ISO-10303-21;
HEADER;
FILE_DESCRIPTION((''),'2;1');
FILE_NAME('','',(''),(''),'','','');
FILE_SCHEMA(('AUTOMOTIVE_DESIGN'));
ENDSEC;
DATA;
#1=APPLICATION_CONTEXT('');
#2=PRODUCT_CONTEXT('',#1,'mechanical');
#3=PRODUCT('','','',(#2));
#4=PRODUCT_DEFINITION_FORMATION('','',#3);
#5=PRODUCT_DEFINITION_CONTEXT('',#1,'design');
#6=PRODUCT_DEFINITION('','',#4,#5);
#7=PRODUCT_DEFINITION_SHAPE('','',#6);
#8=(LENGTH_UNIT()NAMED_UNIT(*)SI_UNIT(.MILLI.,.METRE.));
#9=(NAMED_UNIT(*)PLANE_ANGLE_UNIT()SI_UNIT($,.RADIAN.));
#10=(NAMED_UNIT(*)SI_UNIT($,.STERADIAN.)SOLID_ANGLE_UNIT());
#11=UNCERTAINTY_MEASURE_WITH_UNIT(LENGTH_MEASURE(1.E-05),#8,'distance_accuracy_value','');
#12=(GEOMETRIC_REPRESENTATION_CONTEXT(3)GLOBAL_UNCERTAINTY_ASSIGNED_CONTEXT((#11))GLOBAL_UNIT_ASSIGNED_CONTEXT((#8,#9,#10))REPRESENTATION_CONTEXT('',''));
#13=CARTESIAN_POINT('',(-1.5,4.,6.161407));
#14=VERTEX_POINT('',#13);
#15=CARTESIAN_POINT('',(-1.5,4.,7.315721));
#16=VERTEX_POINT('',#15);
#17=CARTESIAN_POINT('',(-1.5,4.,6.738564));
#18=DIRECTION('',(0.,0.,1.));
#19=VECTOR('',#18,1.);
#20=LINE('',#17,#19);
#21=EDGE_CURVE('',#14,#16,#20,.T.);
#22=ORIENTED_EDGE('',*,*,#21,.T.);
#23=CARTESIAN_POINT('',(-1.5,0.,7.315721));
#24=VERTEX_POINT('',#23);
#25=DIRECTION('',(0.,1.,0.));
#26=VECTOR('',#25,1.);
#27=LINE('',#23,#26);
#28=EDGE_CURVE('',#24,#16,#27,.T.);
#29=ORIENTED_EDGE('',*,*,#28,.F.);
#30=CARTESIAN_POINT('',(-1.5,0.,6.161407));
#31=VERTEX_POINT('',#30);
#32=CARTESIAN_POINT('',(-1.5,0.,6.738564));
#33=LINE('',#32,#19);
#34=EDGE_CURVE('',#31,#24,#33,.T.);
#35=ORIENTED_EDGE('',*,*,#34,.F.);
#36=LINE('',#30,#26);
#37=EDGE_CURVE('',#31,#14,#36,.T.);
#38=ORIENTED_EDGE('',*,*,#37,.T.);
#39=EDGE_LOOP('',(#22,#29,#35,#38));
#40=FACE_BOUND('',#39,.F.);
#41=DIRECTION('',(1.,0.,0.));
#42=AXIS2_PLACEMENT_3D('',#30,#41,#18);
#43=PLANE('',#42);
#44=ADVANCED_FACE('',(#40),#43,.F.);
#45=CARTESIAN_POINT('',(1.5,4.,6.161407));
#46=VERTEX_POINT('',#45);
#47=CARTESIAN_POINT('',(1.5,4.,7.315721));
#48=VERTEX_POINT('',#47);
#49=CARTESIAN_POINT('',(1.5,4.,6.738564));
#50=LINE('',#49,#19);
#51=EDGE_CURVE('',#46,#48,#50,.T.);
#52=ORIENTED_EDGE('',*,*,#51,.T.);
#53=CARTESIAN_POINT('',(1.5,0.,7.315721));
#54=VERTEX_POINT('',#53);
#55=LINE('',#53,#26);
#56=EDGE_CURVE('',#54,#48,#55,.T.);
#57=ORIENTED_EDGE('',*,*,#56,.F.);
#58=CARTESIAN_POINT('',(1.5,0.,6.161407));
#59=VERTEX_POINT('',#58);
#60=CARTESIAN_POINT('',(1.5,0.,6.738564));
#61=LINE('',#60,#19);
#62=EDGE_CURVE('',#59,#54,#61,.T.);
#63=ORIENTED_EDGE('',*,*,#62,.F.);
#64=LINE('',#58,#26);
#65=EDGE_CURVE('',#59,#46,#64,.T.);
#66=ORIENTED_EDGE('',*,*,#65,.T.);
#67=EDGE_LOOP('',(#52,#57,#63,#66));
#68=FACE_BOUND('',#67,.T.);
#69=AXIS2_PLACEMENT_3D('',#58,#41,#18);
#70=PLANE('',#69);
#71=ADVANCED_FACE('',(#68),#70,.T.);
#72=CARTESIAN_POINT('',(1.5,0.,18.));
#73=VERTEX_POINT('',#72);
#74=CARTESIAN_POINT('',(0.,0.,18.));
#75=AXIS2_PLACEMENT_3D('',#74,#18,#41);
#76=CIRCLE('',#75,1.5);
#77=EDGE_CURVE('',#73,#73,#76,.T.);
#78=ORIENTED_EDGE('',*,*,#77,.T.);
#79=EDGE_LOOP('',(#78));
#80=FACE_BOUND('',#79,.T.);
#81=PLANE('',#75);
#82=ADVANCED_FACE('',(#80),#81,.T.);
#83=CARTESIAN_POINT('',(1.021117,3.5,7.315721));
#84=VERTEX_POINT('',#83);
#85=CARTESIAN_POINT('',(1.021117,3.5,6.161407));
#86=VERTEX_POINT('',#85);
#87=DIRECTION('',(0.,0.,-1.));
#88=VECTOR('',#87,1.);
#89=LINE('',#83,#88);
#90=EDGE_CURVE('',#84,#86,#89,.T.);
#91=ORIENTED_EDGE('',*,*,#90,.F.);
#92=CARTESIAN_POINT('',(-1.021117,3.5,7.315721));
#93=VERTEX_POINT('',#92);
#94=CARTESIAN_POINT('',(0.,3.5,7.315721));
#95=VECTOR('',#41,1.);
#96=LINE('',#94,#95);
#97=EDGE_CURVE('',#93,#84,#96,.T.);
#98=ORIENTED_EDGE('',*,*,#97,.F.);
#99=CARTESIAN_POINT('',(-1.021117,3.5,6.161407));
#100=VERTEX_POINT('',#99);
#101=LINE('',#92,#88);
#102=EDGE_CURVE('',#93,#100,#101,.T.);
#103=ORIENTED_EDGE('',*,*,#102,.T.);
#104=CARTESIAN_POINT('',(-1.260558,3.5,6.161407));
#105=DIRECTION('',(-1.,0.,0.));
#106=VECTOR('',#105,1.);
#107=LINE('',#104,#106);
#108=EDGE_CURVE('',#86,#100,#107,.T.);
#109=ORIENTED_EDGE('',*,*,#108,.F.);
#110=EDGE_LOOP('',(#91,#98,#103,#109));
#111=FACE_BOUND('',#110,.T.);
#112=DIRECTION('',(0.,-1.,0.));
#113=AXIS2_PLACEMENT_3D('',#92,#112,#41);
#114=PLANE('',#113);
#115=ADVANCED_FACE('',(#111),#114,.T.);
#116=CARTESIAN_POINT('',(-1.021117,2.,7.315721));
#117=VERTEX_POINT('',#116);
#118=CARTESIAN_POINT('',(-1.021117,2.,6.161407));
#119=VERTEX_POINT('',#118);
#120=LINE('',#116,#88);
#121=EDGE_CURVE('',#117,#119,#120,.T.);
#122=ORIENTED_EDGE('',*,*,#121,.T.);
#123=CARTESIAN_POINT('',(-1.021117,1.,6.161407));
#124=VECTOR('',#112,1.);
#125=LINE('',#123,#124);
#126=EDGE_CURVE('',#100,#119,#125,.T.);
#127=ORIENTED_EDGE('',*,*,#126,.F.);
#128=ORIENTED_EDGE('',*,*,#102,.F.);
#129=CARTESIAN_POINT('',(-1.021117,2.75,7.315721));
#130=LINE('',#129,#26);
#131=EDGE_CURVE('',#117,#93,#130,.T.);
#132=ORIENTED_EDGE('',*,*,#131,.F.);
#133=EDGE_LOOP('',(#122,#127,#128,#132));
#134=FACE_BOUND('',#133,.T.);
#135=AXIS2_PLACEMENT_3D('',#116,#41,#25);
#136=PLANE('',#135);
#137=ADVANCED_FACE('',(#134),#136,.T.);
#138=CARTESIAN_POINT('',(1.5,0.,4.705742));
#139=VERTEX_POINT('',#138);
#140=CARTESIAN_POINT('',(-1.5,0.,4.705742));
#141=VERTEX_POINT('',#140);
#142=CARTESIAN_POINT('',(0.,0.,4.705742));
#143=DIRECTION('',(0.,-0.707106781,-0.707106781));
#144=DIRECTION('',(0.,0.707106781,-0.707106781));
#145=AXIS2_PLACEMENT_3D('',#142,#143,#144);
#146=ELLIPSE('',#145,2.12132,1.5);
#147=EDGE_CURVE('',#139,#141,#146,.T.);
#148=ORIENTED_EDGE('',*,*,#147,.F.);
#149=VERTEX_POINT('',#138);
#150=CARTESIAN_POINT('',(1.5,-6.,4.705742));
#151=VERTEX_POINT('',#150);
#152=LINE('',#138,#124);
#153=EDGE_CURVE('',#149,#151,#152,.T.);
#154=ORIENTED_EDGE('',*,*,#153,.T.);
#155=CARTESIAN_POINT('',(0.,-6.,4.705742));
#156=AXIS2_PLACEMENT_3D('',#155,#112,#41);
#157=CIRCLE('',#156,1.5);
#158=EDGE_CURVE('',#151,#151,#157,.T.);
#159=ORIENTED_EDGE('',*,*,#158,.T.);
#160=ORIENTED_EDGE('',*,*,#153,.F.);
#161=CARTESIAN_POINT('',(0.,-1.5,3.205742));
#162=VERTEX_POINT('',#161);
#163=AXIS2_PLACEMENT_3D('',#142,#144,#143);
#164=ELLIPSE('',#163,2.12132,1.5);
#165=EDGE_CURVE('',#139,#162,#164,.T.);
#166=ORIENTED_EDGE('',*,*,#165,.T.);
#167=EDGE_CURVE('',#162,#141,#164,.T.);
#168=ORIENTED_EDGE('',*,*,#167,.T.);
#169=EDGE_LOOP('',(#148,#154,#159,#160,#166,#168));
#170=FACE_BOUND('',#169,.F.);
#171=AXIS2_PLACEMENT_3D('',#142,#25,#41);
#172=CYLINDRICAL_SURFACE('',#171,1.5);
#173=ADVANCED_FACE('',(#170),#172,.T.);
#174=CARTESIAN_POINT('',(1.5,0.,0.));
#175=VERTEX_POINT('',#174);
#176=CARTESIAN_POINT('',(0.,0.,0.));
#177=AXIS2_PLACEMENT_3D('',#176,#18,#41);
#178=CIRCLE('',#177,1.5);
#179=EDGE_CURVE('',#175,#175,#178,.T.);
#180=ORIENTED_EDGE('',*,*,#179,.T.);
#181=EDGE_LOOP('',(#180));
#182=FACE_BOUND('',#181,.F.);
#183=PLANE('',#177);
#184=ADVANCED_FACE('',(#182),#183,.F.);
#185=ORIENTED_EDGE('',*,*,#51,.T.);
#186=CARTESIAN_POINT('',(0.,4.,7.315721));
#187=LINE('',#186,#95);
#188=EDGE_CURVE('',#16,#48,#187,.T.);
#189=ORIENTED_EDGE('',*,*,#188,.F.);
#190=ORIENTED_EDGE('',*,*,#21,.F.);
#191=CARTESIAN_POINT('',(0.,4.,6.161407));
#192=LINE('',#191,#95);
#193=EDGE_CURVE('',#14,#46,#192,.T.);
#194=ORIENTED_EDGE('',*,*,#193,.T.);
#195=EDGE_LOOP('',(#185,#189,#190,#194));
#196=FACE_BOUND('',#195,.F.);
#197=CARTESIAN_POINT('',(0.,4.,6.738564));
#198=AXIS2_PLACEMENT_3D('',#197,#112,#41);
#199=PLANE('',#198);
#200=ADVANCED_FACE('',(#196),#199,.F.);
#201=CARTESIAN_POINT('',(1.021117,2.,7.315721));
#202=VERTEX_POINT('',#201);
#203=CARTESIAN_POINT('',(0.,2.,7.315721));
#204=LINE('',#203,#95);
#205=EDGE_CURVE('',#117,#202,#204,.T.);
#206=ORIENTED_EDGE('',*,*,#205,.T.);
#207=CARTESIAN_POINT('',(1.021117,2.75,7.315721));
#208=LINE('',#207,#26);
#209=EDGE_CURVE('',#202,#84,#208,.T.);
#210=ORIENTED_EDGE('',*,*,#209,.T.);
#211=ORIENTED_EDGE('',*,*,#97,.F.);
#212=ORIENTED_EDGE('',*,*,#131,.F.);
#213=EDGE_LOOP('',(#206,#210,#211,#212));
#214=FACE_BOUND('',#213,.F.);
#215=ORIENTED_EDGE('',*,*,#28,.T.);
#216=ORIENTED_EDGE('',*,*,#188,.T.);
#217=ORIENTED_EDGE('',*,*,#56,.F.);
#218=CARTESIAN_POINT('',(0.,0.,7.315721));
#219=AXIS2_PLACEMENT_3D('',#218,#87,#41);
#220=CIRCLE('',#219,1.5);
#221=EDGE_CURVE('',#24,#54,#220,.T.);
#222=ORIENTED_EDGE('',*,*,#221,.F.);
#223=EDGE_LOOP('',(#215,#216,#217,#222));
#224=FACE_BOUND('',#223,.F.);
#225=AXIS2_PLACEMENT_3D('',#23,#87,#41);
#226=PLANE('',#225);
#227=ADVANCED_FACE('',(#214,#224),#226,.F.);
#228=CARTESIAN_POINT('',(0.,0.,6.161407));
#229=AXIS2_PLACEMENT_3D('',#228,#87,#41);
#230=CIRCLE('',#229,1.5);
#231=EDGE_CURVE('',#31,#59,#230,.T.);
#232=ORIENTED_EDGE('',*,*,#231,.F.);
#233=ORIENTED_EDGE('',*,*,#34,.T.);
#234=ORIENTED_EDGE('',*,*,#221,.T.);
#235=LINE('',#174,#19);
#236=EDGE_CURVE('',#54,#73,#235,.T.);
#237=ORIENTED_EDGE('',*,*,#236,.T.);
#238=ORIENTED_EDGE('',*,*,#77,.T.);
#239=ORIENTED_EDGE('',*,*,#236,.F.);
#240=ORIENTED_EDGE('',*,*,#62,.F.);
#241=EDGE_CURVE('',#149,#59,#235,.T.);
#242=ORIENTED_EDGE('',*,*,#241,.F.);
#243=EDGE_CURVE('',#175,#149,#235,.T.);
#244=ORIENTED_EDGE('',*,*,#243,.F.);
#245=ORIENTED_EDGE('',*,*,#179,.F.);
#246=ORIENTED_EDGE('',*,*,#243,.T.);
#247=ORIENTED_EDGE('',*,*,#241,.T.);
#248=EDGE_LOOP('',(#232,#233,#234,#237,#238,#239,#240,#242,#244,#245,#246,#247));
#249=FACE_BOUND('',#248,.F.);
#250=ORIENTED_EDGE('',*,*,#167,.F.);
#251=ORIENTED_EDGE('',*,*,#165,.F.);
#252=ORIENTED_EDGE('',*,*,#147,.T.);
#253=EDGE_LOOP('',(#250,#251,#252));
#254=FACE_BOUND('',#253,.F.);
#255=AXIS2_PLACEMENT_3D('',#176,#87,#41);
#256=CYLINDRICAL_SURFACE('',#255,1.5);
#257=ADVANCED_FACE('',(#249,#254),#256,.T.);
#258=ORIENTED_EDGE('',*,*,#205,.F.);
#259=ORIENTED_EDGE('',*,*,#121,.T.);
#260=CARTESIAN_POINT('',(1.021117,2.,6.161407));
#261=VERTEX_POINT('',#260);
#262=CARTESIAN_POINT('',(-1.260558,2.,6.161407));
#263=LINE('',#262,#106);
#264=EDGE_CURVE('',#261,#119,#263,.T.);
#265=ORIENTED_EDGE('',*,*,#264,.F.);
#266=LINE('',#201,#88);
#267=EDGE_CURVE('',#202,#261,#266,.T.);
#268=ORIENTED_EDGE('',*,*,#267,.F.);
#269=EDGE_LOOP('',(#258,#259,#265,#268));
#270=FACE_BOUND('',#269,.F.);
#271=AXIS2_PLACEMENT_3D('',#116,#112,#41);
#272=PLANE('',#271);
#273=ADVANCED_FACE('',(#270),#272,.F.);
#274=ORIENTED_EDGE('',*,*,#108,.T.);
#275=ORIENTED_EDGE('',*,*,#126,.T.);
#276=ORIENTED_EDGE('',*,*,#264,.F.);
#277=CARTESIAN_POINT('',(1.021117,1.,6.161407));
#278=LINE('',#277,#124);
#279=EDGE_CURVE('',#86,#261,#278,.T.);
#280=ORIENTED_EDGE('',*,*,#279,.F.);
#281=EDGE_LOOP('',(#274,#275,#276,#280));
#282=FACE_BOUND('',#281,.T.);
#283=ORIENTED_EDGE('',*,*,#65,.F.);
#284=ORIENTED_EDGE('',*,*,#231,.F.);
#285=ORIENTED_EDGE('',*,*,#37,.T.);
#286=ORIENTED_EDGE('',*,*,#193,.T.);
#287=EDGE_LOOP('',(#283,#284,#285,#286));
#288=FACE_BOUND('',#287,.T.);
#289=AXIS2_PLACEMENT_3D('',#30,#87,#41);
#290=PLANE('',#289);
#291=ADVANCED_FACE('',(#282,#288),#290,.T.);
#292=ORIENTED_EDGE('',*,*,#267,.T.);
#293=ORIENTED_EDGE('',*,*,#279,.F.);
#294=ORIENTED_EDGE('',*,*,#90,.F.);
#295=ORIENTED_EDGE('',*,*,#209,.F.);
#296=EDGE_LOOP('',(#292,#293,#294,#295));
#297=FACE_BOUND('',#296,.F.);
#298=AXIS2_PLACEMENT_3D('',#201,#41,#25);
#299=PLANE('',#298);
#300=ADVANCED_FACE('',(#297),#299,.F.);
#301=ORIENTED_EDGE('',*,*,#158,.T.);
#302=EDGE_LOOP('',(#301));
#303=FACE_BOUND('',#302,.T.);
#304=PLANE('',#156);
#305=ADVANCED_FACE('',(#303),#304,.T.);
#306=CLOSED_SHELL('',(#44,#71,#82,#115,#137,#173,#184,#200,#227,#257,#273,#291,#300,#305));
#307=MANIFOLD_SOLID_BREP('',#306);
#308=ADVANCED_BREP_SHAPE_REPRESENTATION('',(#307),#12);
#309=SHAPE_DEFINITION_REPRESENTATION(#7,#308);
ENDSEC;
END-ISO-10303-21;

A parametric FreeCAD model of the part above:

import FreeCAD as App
import Part
import Sketcher
from FreeCAD import Vector
Q = App.Units.Quantity


def add_polygon(sketch, points):
    """Adds a closed chain of lines whose ends are joined by coincident constraints."""
    first, n = sketch.GeometryCount, len(points)
    for a, b in zip(points, points[1:] + points[:1]):
        sketch.addGeometry(Part.LineSegment(App.Vector(*a, 0), App.Vector(*b, 0)), False)
    for i in range(n):
        sketch.addConstraint(Sketcher.Constraint("Coincident", first + i, 2, first + (i + 1) % n, 1))

doc = App.newDocument("Part")
body = doc.addObject("PartDesign::Body", "Body")

# Sketch on XY plane
sketch1 = body.newObject("Sketcher::SketchObject", "Sketch")
sketch1.AttachmentSupport = (doc.getObject("XY_Plane"), [""])
sketch1.MapMode = "FlatFace"
sketch1.addGeometry(Part.Circle(Vector(0, 0, 0), Vector(0, 0, 1), 1.5), False)
sketch1.addConstraint(Sketcher.Constraint("Coincident", 0, 3, -1, 1))
sketch1.addConstraint(Sketcher.Constraint("Diameter", 0, Q("3 mm")))
pad1 = body.newObject("PartDesign::Pad", "Pad")
pad1.Profile = sketch1
pad1.Length = 18

# Sketch on XZ plane
sketch2 = body.newObject("Sketcher::SketchObject", "Sketch001")
sketch2.AttachmentSupport = (doc.getObject("XZ_Plane"), [""])
sketch2.MapMode = "FlatFace"
sketch2.addGeometry(Part.Circle(Vector(0, 4.7, 0), Vector(0, 0, 1), 1.5), False)
sketch2.addConstraint(Sketcher.Constraint("PointOnObject", 0, 3, -2))
sketch2.addConstraint(Sketcher.Constraint("Diameter", 0, Q("3 mm")))
sketch2.addConstraint(Sketcher.Constraint("DistanceY", -1, 1, 0, 3, Q("4.705742 mm")))
pad2 = body.newObject("PartDesign::Pad", "Pad001")
pad2.Profile = sketch2
pad2.Length = 6

# Sketch on XZ plane
sketch3 = body.newObject("Sketcher::SketchObject", "Sketch002")
sketch3.AttachmentSupport = (doc.getObject("XZ_Plane"), [""])
sketch3.MapMode = "FlatFace"
add_polygon(sketch3, [(-1.5, 7.3), (-1.5, 6.2), (1.5, 6.2), (1.5, 7.3)])  # lines 0-3
sketch3.addConstraint(Sketcher.Constraint("Vertical", 0))
sketch3.addConstraint(Sketcher.Constraint("Horizontal", 1))
sketch3.addConstraint(Sketcher.Constraint("Vertical", 2))
sketch3.addConstraint(Sketcher.Constraint("Horizontal", 3))
sketch3.addConstraint(Sketcher.Constraint("DistanceX", 1, 1, 1, 2, Q("3 mm")))
sketch3.addConstraint(Sketcher.Constraint("DistanceX", 0, 2, -1, 1, Q("1.5 mm")))
sketch3.addConstraint(Sketcher.Constraint("DistanceY", 0, 2, 0, 1, Q("1.154314 mm")))
sketch3.addConstraint(Sketcher.Constraint("DistanceY", -1, 1, 2, 2, Q("7.315721 mm")))
pad3 = body.newObject("PartDesign::Pad", "Pad002")
pad3.Profile = sketch3
pad3.Length = 4
pad3.Reversed = True

# Sketch on XY plane
sketch4 = body.newObject("Sketcher::SketchObject", "Sketch003")
sketch4.AttachmentSupport = (doc.getObject("XY_Plane"), [""])
sketch4.MapMode = "FlatFace"
sketch4.AttachmentOffset = App.Placement(Vector(0, 0, 7.315721), App.Rotation())
add_polygon(sketch4, [(-1, 3.5), (-1, 2), (1, 2), (1, 3.5)])  # lines 0-3
sketch4.addConstraint(Sketcher.Constraint("Vertical", 0))
sketch4.addConstraint(Sketcher.Constraint("Horizontal", 1))
sketch4.addConstraint(Sketcher.Constraint("Vertical", 2))
sketch4.addConstraint(Sketcher.Constraint("Horizontal", 3))
sketch4.addConstraint(Sketcher.Constraint("DistanceY", 0, 2, 0, 1, Q("1.5 mm")))
sketch4.addConstraint(Sketcher.Constraint("DistanceY", -1, 1, 0, 2, Q("2 mm")))
sketch4.addConstraint(Sketcher.Constraint("DistanceX", 1, 1, 1, 2, Q("2.042234 mm")))
sketch4.addConstraint(Sketcher.Constraint("DistanceX", 0, 2, -1, 1, Q("1.021117 mm")))
pocket1 = body.newObject("PartDesign::Pocket", "Pocket")
pocket1.Profile = sketch4
pocket1.Length = 25

doc.recompute()
